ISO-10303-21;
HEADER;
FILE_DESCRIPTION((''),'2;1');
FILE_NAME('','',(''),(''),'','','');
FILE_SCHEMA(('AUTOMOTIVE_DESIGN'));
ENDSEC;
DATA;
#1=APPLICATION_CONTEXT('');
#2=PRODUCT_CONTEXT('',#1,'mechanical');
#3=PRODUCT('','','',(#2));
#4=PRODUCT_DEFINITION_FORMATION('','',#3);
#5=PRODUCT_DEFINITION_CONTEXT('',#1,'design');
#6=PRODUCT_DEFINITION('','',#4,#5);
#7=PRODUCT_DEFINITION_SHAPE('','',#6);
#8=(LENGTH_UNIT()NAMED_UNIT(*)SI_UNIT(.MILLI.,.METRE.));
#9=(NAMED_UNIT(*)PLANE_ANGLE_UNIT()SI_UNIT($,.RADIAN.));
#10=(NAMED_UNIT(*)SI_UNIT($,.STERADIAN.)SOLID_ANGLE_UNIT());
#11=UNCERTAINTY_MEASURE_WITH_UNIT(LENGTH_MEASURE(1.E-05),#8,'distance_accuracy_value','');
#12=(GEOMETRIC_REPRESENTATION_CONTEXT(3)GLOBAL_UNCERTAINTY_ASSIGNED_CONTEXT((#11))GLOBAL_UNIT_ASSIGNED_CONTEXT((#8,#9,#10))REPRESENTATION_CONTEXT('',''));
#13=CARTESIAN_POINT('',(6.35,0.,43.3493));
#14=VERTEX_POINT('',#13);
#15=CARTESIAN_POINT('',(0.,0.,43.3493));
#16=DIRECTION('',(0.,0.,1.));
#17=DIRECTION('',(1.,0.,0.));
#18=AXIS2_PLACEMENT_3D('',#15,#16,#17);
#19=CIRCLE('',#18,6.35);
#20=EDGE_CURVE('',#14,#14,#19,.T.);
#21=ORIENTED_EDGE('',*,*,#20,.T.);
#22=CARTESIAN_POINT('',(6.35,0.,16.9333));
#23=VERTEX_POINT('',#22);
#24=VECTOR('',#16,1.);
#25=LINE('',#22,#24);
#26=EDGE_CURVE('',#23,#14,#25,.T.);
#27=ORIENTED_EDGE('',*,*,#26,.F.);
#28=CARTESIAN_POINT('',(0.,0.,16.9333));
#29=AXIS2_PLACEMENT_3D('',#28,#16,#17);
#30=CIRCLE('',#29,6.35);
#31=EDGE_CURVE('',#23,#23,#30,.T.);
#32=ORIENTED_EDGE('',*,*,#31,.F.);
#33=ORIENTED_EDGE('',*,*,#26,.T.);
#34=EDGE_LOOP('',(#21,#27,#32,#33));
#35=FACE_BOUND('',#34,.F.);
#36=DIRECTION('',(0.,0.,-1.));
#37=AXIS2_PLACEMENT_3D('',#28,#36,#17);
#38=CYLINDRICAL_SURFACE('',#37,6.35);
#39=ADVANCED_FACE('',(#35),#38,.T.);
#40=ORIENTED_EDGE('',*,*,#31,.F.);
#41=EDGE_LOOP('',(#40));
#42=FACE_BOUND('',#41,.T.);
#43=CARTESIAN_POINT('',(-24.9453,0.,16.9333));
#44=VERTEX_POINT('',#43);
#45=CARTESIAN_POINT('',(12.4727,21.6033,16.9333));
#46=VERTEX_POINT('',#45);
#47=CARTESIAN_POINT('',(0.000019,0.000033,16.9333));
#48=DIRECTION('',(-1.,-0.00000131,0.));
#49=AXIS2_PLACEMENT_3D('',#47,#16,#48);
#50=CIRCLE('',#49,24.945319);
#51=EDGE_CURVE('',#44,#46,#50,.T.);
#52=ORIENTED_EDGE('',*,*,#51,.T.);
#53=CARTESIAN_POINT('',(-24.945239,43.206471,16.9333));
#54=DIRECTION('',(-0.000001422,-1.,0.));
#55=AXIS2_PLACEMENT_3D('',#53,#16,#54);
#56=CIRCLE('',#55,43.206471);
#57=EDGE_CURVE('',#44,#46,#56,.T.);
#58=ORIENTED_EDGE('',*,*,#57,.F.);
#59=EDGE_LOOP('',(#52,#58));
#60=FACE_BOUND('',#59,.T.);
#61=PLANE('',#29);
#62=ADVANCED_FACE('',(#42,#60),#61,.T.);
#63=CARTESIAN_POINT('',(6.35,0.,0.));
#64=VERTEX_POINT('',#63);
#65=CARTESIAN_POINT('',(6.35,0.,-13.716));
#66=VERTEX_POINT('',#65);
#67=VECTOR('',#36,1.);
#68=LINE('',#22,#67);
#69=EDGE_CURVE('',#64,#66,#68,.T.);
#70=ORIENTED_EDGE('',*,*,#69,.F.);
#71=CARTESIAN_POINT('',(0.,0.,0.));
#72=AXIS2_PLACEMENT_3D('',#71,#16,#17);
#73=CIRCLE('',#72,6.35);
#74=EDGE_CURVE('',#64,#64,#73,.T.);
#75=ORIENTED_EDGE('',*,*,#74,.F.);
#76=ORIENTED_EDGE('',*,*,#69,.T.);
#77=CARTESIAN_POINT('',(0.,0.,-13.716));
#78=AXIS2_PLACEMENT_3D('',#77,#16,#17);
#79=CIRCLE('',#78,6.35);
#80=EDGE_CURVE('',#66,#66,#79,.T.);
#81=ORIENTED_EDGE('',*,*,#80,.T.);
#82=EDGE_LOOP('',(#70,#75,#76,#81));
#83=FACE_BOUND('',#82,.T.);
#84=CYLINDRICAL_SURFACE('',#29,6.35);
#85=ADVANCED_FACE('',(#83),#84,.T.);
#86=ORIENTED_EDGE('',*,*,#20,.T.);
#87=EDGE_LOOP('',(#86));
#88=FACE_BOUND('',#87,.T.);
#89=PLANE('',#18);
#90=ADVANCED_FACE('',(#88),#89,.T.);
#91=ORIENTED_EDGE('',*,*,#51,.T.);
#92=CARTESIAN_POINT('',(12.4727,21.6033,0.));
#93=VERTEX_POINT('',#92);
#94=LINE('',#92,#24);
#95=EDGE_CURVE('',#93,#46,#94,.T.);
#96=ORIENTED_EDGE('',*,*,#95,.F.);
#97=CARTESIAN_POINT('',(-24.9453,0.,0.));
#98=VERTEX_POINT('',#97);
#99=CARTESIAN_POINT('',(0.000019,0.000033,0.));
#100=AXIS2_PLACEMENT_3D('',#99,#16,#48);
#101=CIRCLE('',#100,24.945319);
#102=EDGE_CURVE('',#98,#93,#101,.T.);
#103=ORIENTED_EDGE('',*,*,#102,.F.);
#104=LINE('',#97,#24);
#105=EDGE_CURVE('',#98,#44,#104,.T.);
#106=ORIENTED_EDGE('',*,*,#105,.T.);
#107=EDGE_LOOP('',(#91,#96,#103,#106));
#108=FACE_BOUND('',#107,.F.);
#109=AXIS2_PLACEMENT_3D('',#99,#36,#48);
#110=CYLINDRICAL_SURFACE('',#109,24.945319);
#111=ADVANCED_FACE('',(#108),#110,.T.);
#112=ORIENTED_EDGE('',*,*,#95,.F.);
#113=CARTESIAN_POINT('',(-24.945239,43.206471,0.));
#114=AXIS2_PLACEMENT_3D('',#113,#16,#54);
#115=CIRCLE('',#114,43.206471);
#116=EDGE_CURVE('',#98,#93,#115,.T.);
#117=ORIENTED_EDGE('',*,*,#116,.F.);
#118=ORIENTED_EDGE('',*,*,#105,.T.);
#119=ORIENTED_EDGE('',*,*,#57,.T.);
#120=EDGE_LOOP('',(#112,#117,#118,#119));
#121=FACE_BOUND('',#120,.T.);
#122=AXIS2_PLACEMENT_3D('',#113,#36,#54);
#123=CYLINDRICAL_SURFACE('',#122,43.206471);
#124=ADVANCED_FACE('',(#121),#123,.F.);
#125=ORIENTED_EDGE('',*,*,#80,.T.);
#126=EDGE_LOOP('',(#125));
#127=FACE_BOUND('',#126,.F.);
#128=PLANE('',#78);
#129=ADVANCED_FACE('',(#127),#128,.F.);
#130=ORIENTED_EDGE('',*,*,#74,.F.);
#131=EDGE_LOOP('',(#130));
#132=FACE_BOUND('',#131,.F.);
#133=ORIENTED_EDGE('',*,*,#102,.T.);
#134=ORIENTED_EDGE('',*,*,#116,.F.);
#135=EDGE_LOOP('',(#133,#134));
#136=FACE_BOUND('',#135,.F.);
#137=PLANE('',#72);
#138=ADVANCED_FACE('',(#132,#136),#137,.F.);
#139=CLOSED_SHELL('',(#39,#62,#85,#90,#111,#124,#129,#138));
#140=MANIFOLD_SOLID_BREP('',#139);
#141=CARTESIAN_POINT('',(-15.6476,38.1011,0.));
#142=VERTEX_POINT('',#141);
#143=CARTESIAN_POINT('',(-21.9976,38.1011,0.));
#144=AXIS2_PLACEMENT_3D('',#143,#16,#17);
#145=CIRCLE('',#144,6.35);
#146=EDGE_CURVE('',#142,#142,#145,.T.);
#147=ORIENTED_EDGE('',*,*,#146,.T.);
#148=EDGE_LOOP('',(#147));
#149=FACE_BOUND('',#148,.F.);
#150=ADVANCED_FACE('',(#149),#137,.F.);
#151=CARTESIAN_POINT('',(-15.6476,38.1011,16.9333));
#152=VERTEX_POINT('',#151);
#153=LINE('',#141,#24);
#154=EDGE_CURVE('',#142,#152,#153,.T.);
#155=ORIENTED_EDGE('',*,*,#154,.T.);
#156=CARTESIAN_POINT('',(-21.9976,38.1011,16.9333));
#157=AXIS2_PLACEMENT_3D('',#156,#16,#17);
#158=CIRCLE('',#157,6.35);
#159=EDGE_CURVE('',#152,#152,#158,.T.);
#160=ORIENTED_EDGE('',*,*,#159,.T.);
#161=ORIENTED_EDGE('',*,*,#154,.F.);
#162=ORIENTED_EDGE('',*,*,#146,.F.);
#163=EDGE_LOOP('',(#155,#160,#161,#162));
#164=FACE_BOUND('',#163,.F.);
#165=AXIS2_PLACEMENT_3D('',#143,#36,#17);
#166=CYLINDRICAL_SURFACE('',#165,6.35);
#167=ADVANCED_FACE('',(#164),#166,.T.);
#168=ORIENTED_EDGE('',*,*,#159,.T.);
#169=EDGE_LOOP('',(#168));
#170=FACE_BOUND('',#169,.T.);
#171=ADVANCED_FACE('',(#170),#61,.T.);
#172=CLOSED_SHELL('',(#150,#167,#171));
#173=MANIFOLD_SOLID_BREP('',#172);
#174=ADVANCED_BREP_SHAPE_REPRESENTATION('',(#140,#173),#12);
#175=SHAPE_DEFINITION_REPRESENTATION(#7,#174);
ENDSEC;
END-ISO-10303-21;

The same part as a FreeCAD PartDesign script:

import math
import FreeCAD as App
import Part
import Sketcher
from FreeCAD import Vector
Q = App.Units.Quantity

doc = App.newDocument("Part")
body = doc.addObject("PartDesign::Body", "Body")
body.AllowCompound = True

sketch1 = doc.addObject("Sketcher::SketchObject", "Sketch")
body.addObject(sketch1)
sketch1.AttachmentSupport = (doc.XY_Plane, [""])
sketch1.MapMode = "FlatFace"
sketch1.addGeometry([
    Part.ArcOfCircle(Part.Circle(Vector(-25, 43, 0), Vector(0, 0, 1), 43), math.radians(-90), math.radians(-30)),
    Part.ArcOfCircle(Part.Circle(Vector(0, 0, 0), Vector(0, 0, 1), 25), math.radians(180), math.radians(420)),
    Part.Circle(Vector(-22, 38, 0), Vector(0, 0, 1), 6),
], False)
sketch1.addConstraint([
    Sketcher.Constraint("Coincident", 0, 1, 1, 1),
    Sketcher.Constraint("Coincident", 1, 2, 0, 2),
    Sketcher.Constraint("Coincident", 1, 3, -1, 1),
    Sketcher.Constraint("PointOnObject", 0, 1, -1),
    Sketcher.Constraint("Diameter", 2, Q("0.5 in")),
    Sketcher.Constraint("Radius", 1, Q("0.9821 in")),
    Sketcher.Constraint("DistanceX", 0, 3, -1, 1, Q("0.9821 in")),
    Sketcher.Constraint("Radius", 0, 43.2067),
    Sketcher.Constraint("DistanceY", 2, 3, 0, 3, Q("0.201 in")),
    Sketcher.Constraint("DistanceX", 2, 3, 1, 2, Q("1.3571 in")),
])
pad1 = doc.addObject("PartDesign::Pad", "Pad")
body.addObject(pad1)
pad1.Profile = sketch1
pad1.Length = 16.9333

sketch2 = doc.addObject("Sketcher::SketchObject", "Sketch001")
body.addObject(sketch2)
sketch2.AttachmentSupport = (doc.XY_Plane, [""])
sketch2.MapMode = "FlatFace"
sketch2.AttachmentOffset = App.Placement(Vector(0, 0, 16.9333), App.Rotation())
sketch2.addGeometry(Part.Circle(Vector(0, 0, 0), Vector(0, 0, 1), 6), False)
sketch2.addConstraint([
    Sketcher.Constraint("Coincident", 0, 3, -1, 1),
    Sketcher.Constraint("Diameter", 0, Q("0.5 in")),
])
pad2 = doc.addObject("PartDesign::Pad", "Pad001")
body.addObject(pad2)
pad2.Profile = sketch2
pad2.Type = "TwoLengths"
pad2.Length = Q("1.04 in")
pad2.Length2 = 30.6493

doc.recompute()
